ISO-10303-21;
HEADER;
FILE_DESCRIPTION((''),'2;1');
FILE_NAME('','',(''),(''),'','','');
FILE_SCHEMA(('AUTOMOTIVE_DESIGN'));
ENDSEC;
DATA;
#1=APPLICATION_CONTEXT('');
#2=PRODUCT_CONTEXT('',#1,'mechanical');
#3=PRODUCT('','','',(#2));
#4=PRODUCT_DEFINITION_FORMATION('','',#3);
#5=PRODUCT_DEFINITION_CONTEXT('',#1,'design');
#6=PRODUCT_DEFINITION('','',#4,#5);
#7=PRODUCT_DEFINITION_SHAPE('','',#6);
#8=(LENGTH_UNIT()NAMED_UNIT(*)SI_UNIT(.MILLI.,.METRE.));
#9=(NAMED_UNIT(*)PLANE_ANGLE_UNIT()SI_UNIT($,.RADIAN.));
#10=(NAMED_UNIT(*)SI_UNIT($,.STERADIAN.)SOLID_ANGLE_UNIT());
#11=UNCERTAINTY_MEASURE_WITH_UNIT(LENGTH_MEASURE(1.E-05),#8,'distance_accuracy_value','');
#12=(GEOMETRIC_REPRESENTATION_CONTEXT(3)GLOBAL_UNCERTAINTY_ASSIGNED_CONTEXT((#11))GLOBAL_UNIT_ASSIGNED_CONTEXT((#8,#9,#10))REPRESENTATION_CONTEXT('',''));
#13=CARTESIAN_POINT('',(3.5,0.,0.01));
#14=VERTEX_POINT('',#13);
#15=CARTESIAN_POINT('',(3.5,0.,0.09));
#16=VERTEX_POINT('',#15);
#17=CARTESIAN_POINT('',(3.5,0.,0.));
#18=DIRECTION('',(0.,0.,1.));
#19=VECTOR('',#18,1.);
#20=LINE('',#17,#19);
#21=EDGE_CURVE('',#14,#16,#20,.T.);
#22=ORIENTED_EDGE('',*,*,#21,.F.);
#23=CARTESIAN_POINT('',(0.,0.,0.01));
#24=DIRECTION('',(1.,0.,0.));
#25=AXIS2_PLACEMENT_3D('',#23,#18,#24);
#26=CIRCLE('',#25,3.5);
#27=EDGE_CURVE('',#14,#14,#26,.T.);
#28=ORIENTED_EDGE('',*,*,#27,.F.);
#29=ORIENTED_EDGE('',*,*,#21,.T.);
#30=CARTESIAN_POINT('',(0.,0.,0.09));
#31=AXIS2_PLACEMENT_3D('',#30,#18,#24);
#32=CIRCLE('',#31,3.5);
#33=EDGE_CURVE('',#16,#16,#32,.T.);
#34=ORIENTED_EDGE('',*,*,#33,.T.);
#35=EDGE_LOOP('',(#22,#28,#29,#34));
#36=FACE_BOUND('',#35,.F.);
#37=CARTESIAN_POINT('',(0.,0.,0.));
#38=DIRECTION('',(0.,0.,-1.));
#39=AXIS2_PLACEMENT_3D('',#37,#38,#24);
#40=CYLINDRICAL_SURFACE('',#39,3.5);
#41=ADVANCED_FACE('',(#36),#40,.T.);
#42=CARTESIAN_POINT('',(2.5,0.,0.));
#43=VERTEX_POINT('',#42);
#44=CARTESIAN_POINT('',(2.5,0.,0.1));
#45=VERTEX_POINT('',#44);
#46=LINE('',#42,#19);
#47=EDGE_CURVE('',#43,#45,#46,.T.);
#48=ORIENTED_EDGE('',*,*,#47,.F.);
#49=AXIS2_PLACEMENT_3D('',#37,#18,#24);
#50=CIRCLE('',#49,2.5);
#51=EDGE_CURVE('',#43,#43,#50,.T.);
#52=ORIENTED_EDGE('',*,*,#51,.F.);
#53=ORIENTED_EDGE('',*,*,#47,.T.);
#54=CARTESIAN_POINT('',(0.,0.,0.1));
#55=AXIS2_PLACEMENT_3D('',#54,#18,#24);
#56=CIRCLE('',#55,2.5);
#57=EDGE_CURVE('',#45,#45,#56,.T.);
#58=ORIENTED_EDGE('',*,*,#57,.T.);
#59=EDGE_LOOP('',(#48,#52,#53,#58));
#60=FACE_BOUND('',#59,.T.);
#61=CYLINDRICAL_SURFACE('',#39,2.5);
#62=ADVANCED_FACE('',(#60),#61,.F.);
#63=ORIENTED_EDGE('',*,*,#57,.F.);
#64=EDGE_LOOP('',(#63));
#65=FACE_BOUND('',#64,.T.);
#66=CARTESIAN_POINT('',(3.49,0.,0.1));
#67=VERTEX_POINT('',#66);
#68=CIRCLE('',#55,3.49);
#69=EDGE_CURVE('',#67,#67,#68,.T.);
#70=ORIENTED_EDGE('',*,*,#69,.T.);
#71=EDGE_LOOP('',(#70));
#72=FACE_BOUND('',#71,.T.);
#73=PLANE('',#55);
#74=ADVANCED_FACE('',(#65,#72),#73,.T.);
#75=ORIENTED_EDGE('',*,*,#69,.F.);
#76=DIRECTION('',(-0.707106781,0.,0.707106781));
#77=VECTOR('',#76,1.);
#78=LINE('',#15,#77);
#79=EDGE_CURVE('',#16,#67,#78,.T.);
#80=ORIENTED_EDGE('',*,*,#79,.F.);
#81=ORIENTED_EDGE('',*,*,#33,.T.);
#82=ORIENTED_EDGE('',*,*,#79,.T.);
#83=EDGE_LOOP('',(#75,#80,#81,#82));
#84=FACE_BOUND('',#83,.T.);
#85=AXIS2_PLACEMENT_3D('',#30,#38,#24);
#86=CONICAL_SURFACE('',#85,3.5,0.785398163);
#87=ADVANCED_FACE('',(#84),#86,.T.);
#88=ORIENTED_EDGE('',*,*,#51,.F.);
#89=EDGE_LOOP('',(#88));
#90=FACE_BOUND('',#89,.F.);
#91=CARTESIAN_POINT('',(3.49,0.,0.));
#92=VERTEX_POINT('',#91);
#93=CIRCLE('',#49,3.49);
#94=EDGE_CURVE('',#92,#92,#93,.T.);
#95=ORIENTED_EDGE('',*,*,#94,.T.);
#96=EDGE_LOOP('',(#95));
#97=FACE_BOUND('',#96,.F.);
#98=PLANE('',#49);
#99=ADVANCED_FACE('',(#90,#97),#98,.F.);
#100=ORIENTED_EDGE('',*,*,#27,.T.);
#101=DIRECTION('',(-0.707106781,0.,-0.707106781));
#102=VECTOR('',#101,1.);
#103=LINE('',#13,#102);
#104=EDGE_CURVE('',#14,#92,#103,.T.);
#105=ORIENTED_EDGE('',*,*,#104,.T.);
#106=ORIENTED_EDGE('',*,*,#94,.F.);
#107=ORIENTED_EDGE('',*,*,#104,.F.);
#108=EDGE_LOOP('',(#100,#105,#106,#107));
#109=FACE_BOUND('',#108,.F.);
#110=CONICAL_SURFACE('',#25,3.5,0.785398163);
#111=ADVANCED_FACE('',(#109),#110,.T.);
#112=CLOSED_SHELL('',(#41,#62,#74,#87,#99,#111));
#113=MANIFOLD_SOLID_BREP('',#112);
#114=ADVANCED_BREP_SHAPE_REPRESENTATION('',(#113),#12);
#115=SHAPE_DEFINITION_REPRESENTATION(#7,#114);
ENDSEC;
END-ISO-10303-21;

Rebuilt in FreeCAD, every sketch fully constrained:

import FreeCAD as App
import Part
import Sketcher


def edges_at(feature, points):
    """Names of the edges that pass closest to the given points."""
    edges = feature.Shape.Edges
    near = lambda p: min(range(len(edges)), key=lambda i: edges[i].distToShape(Part.Vertex(*p))[0])
    return sorted({f"Edge{near(p) + 1}" for p in points})

doc = App.newDocument("Part")
body = doc.addObject("PartDesign::Body", "Body")

# Sketch on XY plane
sketch1 = body.newObject("Sketcher::SketchObject", "Sketch")
sketch1.AttachmentSupport = (doc.getObject("XY_Plane"), [""])
sketch1.MapMode = "FlatFace"
sketch1.addGeometry([
    Part.Circle(App.Vector(0, 0, 0), App.Vector(0, 0, 1), 3.5),
    Part.Circle(App.Vector(0, 0, 0), App.Vector(0, 0, 1), 2.5),
], False)
sketch1.addConstraint([
    Sketcher.Constraint("Coincident", 0, 3, -1, 1),
    Sketcher.Constraint("Coincident", 1, 3, -1, 1),
    Sketcher.Constraint("Diameter", 0, 7.0),
    Sketcher.Constraint("Diameter", 1, 5.0),
])
pad1 = body.newObject("PartDesign::Pad", "Pad")
pad1.Profile = sketch1
pad1.Length = 0.1
doc.recompute()

chamfer = body.newObject("PartDesign::Chamfer", "Chamfer")
chamfer.Base = (pad1, edges_at(pad1, [(-3.5, 0, 0.1), (-3.5, 0, 0)]))
chamfer.Size = 0.01

doc.recompute()
